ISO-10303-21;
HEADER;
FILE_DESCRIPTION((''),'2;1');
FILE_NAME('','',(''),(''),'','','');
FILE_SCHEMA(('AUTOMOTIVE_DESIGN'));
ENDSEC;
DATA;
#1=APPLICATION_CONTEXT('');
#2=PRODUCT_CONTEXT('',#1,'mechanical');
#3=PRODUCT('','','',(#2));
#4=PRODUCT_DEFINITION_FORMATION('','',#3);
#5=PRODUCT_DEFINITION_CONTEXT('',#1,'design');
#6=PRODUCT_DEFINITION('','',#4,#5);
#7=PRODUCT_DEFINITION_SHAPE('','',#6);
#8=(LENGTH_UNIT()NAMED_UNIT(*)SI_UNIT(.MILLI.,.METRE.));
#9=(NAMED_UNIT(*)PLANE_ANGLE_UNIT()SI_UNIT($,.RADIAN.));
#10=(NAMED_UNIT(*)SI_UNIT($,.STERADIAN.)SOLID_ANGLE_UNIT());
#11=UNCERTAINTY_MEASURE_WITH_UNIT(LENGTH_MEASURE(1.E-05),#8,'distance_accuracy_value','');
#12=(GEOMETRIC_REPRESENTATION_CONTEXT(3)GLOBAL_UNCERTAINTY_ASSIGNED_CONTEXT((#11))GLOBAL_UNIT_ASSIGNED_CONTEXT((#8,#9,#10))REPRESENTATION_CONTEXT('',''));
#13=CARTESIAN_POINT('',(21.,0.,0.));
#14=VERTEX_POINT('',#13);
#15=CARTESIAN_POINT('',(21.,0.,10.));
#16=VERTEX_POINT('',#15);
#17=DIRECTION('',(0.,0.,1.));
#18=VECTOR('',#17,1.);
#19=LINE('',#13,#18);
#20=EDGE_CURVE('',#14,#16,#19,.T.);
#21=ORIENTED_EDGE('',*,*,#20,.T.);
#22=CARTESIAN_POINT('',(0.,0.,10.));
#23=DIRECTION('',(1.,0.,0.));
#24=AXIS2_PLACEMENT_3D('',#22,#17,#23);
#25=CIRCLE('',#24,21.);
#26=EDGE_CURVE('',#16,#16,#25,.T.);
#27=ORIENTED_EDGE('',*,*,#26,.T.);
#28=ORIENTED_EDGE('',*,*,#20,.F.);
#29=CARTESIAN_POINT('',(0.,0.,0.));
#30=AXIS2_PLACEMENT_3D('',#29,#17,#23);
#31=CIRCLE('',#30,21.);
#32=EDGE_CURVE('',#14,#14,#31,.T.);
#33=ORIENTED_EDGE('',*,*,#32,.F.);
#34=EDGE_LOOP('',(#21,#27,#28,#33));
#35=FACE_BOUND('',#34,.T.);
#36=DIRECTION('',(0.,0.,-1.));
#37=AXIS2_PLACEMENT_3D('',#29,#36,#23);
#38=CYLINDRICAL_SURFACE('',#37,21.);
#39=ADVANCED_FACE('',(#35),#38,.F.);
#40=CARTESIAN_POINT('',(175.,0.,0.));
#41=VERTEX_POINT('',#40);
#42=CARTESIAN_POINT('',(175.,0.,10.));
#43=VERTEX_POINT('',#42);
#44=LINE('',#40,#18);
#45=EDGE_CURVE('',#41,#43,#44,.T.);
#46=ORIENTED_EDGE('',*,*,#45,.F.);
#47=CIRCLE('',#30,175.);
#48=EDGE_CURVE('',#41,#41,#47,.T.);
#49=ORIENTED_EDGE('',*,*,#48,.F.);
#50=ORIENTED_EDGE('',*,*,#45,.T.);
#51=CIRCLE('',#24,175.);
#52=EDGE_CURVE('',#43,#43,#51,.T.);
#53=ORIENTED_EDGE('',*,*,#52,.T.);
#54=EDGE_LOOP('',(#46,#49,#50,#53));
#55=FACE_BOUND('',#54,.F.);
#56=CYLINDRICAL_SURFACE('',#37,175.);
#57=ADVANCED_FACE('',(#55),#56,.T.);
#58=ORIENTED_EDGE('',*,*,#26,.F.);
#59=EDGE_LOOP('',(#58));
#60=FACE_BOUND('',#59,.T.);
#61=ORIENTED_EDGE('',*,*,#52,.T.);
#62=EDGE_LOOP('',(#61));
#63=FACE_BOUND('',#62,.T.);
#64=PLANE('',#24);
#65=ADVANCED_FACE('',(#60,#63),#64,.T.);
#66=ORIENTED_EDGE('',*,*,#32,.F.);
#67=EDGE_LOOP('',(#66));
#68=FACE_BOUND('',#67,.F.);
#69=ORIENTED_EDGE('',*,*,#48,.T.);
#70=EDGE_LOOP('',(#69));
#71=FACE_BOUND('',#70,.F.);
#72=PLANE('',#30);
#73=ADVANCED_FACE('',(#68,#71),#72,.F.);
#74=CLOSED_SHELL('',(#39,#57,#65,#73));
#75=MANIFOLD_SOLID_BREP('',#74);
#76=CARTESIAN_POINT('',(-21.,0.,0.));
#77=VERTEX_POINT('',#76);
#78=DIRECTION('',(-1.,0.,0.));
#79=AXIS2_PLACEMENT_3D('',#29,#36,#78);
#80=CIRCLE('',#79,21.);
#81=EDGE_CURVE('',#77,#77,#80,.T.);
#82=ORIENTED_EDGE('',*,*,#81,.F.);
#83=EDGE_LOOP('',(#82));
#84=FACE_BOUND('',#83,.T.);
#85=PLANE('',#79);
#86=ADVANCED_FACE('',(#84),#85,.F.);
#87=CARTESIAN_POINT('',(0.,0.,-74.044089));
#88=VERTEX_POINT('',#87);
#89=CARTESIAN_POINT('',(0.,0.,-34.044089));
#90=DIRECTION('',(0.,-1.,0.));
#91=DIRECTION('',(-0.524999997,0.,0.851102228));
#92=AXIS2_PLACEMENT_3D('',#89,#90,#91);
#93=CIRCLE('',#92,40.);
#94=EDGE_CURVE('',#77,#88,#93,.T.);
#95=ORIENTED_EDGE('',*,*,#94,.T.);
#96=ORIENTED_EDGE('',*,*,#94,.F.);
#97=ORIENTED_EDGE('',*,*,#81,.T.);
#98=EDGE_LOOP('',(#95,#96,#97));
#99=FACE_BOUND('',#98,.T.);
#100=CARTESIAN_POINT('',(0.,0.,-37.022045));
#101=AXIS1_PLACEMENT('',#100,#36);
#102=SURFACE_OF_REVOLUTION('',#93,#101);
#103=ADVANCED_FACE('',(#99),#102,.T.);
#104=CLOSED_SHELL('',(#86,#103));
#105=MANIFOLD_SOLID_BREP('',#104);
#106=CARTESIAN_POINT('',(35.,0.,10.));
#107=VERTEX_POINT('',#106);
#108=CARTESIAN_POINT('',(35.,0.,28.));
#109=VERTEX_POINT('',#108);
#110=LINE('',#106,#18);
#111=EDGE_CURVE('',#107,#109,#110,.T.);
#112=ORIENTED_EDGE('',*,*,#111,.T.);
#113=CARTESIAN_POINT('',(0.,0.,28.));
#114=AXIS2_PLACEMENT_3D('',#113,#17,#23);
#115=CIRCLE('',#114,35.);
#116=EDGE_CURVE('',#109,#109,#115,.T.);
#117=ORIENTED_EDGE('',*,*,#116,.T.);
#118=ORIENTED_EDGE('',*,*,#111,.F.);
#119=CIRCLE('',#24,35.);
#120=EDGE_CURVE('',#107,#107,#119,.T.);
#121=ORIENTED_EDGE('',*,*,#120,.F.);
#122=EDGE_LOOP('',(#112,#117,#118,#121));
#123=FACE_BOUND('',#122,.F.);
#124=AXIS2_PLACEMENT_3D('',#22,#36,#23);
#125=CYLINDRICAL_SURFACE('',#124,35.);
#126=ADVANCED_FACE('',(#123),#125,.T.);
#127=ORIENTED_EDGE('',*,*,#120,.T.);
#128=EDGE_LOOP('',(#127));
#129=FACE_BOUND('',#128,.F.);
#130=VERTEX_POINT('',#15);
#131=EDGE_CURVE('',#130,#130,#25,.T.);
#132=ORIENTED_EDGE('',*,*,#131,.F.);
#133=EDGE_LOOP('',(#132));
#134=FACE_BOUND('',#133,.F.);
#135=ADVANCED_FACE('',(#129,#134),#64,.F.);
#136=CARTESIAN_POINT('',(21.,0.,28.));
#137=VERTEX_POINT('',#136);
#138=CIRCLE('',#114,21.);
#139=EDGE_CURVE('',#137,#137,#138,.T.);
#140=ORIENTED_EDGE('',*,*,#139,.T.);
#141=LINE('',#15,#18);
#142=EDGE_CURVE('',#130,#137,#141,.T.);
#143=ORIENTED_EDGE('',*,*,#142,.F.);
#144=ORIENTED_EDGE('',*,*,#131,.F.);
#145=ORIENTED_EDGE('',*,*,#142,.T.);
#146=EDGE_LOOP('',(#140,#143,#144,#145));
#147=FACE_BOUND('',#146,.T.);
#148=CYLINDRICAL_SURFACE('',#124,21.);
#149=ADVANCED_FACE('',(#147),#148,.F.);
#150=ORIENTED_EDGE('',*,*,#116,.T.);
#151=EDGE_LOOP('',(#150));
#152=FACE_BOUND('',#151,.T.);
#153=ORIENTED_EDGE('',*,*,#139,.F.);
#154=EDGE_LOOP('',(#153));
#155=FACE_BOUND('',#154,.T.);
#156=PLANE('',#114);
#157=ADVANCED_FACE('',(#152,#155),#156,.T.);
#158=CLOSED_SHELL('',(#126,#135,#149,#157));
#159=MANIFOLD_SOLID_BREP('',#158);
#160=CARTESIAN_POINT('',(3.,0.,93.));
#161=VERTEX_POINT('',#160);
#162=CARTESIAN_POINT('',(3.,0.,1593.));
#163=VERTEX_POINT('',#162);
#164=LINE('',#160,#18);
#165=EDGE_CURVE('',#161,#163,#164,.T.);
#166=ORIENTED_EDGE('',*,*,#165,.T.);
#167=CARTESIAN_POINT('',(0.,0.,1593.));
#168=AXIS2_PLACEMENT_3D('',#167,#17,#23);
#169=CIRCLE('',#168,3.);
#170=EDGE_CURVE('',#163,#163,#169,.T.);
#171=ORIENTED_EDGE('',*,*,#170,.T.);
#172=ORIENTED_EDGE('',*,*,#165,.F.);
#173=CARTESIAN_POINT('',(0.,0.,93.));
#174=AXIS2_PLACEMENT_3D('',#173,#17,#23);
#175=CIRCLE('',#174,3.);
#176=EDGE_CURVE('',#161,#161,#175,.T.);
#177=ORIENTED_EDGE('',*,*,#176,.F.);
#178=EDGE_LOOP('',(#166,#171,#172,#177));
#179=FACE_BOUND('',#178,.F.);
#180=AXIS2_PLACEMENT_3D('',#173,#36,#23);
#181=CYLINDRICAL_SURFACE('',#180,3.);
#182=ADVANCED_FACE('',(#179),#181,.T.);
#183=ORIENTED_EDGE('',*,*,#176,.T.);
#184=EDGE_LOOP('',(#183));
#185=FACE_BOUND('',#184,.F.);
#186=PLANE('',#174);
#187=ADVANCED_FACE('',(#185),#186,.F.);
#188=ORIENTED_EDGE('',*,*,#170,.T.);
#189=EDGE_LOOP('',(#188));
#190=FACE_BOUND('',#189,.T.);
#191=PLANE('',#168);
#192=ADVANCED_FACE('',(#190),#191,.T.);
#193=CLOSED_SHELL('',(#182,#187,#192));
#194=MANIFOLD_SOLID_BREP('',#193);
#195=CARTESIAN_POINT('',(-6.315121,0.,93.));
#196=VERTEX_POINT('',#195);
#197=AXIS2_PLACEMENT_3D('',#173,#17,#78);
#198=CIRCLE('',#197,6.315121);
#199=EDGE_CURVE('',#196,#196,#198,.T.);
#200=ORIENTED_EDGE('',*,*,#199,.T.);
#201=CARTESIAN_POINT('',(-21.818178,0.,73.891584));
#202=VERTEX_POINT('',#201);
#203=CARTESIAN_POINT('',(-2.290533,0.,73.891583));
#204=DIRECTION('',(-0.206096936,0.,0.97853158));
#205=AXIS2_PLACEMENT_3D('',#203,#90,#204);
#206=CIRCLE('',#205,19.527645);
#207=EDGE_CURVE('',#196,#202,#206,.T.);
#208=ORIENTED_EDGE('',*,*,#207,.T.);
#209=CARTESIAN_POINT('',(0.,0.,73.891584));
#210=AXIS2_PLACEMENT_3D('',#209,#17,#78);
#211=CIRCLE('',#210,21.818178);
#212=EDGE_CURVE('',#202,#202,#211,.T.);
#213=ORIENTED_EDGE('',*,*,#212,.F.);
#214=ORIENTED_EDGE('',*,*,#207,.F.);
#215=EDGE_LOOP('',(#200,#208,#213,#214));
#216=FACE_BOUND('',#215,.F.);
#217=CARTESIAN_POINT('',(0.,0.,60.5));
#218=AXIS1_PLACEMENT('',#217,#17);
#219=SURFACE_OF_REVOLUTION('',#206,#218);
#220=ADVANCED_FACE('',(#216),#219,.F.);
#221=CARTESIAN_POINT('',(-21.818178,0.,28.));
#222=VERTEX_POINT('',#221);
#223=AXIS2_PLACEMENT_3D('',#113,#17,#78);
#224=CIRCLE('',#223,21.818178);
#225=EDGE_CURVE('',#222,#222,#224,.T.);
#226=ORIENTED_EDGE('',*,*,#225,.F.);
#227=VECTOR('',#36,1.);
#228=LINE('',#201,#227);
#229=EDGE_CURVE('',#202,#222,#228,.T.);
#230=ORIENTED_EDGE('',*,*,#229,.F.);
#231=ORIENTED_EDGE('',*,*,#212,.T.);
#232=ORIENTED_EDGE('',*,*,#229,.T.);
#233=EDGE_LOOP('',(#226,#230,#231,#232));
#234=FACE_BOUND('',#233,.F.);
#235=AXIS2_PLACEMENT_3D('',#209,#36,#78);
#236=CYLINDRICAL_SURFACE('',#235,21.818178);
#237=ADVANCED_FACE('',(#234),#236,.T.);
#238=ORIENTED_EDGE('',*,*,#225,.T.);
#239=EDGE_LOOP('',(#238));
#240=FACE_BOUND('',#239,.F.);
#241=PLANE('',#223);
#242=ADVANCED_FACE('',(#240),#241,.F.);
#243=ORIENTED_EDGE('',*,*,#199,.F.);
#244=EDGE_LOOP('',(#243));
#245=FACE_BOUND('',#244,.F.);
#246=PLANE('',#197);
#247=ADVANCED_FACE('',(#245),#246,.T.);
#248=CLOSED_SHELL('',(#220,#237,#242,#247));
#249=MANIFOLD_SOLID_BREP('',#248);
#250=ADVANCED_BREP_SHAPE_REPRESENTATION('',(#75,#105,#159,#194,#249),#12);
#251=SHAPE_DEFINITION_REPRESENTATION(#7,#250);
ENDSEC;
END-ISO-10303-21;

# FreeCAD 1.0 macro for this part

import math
import FreeCAD as App
import Part
import Sketcher

V = App.Vector
Q = App.Units.Quantity

doc = App.newDocument("Part")
body = doc.addObject("PartDesign::Body", "Body")

# Sketch on XY plane
sketch1 = doc.addObject("Sketcher::SketchObject", "Sketch")
body.addObject(sketch1)
sketch1.AttachmentSupport = (doc.XY_Plane, [""])
sketch1.MapMode = "FlatFace"
sketch1.addGeometry([
    Part.Circle(V(0, 0, 0), V(0, 0, 1), 175),
    Part.Circle(V(0, 0, 0), V(0, 0, 1), 21),
], False)
sketch1.addConstraint([
    Sketcher.Constraint("Coincident", 0, 3, -1, 1),
    Sketcher.Constraint("Coincident", 1, 3, -1, 1),
    Sketcher.Constraint("Diameter", 0, Q("350 mm")),
    Sketcher.Constraint("Diameter", 1, Q("42 mm")),
])
pad1 = doc.addObject("PartDesign::Pad", "Pad")
body.addObject(pad1)
pad1.Profile = sketch1
pad1.Length = 10
body2 = doc.addObject("PartDesign::Body", "Body001")

# Sketch on XY plane
sketch2 = doc.addObject("Sketcher::SketchObject", "Sketch001")
body2.addObject(sketch2)
sketch2.AttachmentSupport = (doc.getObject("XY_Plane001"), [""])
sketch2.MapMode = "FlatFace"
sketch2.AttachmentOffset = App.Placement(V(0, 0, 10), App.Rotation())
sketch2.addGeometry([
    Part.Circle(V(0, 0, 0), V(0, 0, 1), 35),
    Part.Circle(V(0, 0, 0), V(0, 0, 1), 21),
], False)
sketch2.addConstraint([
    Sketcher.Constraint("Coincident", 0, 3, -1, 1),
    Sketcher.Constraint("Coincident", 1, 3, -1, 1),
    Sketcher.Constraint("Diameter", 0, Q("70 mm")),
    Sketcher.Constraint("Diameter", 1, Q("42 mm")),
])
pad2 = doc.addObject("PartDesign::Pad", "Pad001")
body2.addObject(pad2)
pad2.Profile = sketch2
pad2.Length = 18
body3 = doc.addObject("PartDesign::Body", "Body002")

# Sketch on XZ plane
sketch3 = doc.addObject("Sketcher::SketchObject", "Sketch002")
body3.addObject(sketch3)
sketch3.AttachmentSupport = (doc.getObject("XZ_Plane002"), [""])
sketch3.MapMode = "FlatFace"
sketch3.addGeometry([
    Part.LineSegment(V(-21.818178, 28, 0), V(0, 28, 0)),  # 0
    Part.LineSegment(V(0, 28, 0), V(0, 93, 0)),  # 1
    Part.LineSegment(V(0, 93, 0), V(-6.315121, 93, 0)),  # 2
    Part.ArcOfCircle(Part.Circle(V(-2.290533, 73.891583, 0), V(0, 0, 1), 19.527645), math.radians(101.89372), math.radians(179.999997)),  # 3
    Part.LineSegment(V(-21.818178, 73.891584, 0), V(-21.818178, 28, 0)),  # 4
], False)
sketch3.addConstraint([
    Sketcher.Constraint("Coincident", 0, 2, 1, 1),
    Sketcher.Constraint("Coincident", 1, 2, 2, 1),
    Sketcher.Constraint("Coincident", 2, 2, 3, 1),
    Sketcher.Constraint("Tangent", 3, 2, 4, 1),
    Sketcher.Constraint("Coincident", 4, 2, 0, 1),
    Sketcher.Constraint("Horizontal", 0),
    Sketcher.Constraint("Vertical", 1),
    Sketcher.Constraint("Horizontal", 2),
    Sketcher.Constraint("Vertical", 4),
    Sketcher.Constraint("PointOnObject", 0, 2, -2),
    Sketcher.Constraint("DistanceY", 1, 1, 1, 2, Q("65 mm")),
    Sketcher.Constraint("DistanceY", -1, 1, 0, 2, Q("28 mm")),
    Sketcher.Constraint("Radius", 3, Q("19.527645 mm")),
    Sketcher.Constraint("DistanceX", 2, 2, 2, 1, Q("6.315121 mm")),
    Sketcher.Constraint("DistanceX", 0, 1, 0, 2, Q("21.818178 mm")),
])
revolution = doc.addObject("PartDesign::Revolution", "Revolution")
body3.addObject(revolution)
revolution.Profile = sketch3
revolution.ReferenceAxis = (sketch3, ["V_Axis"])
revolution.Angle = 360
body4 = doc.addObject("PartDesign::Body", "Body003")

# Sketch on XZ plane
sketch4 = doc.addObject("Sketcher::SketchObject", "Sketch003")
body4.addObject(sketch4)
sketch4.AttachmentSupport = (doc.getObject("XZ_Plane003"), [""])
sketch4.MapMode = "FlatFace"
sketch4.addGeometry([
    Part.LineSegment(V(0, 0, 0), V(-21, 0, 0)),
    Part.ArcOfCircle(Part.Circle(V(0, -34.044089, 0), V(0, 0, 1), 40), math.radians(121.668243), math.radians(270)),
    Part.LineSegment(V(0, -74.044089, 0), V(0, 0, 0)),
], False)
sketch4.addConstraint([
    Sketcher.Constraint("Coincident", 0, 2, 1, 1),
    Sketcher.Constraint("Coincident", 1, 2, 2, 1),
    Sketcher.Constraint("Coincident", 2, 2, 0, 1),
    Sketcher.Constraint("Horizontal", 0),
    Sketcher.Constraint("Vertical", 2),
    Sketcher.Constraint("Coincident", 2, 2, -1, 1),
    Sketcher.Constraint("PointOnObject", 1, 3, -2),
    Sketcher.Constraint("Radius", 1, Q("40 mm")),
    Sketcher.Constraint("DistanceX", 0, 2, 0, 1, Q("21 mm")),
])
revolution2 = doc.addObject("PartDesign::Revolution", "Revolution001")
body4.addObject(revolution2)
revolution2.Profile = sketch4
revolution2.ReferenceAxis = (sketch4, ["V_Axis"])
revolution2.Angle = 360
body5 = doc.addObject("PartDesign::Body", "Body004")

# Sketch on XY plane
sketch5 = doc.addObject("Sketcher::SketchObject", "Sketch004")
body5.addObject(sketch5)
sketch5.AttachmentSupport = (doc.getObject("XY_Plane004"), [""])
sketch5.MapMode = "FlatFace"
sketch5.AttachmentOffset = App.Placement(V(0, 0, 93), App.Rotation())
sketch5.addGeometry(Part.Circle(V(0, 0, 0), V(0, 0, 1), 3), False)
sketch5.addConstraint([
    Sketcher.Constraint("Coincident", 0, 3, -1, 1),
    Sketcher.Constraint("Diameter", 0, Q("6 mm")),
])
pad3 = doc.addObject("PartDesign::Pad", "Pad002")
body5.addObject(pad3)
pad3.Profile = sketch5
pad3.Length = 1500

doc.recompute()
